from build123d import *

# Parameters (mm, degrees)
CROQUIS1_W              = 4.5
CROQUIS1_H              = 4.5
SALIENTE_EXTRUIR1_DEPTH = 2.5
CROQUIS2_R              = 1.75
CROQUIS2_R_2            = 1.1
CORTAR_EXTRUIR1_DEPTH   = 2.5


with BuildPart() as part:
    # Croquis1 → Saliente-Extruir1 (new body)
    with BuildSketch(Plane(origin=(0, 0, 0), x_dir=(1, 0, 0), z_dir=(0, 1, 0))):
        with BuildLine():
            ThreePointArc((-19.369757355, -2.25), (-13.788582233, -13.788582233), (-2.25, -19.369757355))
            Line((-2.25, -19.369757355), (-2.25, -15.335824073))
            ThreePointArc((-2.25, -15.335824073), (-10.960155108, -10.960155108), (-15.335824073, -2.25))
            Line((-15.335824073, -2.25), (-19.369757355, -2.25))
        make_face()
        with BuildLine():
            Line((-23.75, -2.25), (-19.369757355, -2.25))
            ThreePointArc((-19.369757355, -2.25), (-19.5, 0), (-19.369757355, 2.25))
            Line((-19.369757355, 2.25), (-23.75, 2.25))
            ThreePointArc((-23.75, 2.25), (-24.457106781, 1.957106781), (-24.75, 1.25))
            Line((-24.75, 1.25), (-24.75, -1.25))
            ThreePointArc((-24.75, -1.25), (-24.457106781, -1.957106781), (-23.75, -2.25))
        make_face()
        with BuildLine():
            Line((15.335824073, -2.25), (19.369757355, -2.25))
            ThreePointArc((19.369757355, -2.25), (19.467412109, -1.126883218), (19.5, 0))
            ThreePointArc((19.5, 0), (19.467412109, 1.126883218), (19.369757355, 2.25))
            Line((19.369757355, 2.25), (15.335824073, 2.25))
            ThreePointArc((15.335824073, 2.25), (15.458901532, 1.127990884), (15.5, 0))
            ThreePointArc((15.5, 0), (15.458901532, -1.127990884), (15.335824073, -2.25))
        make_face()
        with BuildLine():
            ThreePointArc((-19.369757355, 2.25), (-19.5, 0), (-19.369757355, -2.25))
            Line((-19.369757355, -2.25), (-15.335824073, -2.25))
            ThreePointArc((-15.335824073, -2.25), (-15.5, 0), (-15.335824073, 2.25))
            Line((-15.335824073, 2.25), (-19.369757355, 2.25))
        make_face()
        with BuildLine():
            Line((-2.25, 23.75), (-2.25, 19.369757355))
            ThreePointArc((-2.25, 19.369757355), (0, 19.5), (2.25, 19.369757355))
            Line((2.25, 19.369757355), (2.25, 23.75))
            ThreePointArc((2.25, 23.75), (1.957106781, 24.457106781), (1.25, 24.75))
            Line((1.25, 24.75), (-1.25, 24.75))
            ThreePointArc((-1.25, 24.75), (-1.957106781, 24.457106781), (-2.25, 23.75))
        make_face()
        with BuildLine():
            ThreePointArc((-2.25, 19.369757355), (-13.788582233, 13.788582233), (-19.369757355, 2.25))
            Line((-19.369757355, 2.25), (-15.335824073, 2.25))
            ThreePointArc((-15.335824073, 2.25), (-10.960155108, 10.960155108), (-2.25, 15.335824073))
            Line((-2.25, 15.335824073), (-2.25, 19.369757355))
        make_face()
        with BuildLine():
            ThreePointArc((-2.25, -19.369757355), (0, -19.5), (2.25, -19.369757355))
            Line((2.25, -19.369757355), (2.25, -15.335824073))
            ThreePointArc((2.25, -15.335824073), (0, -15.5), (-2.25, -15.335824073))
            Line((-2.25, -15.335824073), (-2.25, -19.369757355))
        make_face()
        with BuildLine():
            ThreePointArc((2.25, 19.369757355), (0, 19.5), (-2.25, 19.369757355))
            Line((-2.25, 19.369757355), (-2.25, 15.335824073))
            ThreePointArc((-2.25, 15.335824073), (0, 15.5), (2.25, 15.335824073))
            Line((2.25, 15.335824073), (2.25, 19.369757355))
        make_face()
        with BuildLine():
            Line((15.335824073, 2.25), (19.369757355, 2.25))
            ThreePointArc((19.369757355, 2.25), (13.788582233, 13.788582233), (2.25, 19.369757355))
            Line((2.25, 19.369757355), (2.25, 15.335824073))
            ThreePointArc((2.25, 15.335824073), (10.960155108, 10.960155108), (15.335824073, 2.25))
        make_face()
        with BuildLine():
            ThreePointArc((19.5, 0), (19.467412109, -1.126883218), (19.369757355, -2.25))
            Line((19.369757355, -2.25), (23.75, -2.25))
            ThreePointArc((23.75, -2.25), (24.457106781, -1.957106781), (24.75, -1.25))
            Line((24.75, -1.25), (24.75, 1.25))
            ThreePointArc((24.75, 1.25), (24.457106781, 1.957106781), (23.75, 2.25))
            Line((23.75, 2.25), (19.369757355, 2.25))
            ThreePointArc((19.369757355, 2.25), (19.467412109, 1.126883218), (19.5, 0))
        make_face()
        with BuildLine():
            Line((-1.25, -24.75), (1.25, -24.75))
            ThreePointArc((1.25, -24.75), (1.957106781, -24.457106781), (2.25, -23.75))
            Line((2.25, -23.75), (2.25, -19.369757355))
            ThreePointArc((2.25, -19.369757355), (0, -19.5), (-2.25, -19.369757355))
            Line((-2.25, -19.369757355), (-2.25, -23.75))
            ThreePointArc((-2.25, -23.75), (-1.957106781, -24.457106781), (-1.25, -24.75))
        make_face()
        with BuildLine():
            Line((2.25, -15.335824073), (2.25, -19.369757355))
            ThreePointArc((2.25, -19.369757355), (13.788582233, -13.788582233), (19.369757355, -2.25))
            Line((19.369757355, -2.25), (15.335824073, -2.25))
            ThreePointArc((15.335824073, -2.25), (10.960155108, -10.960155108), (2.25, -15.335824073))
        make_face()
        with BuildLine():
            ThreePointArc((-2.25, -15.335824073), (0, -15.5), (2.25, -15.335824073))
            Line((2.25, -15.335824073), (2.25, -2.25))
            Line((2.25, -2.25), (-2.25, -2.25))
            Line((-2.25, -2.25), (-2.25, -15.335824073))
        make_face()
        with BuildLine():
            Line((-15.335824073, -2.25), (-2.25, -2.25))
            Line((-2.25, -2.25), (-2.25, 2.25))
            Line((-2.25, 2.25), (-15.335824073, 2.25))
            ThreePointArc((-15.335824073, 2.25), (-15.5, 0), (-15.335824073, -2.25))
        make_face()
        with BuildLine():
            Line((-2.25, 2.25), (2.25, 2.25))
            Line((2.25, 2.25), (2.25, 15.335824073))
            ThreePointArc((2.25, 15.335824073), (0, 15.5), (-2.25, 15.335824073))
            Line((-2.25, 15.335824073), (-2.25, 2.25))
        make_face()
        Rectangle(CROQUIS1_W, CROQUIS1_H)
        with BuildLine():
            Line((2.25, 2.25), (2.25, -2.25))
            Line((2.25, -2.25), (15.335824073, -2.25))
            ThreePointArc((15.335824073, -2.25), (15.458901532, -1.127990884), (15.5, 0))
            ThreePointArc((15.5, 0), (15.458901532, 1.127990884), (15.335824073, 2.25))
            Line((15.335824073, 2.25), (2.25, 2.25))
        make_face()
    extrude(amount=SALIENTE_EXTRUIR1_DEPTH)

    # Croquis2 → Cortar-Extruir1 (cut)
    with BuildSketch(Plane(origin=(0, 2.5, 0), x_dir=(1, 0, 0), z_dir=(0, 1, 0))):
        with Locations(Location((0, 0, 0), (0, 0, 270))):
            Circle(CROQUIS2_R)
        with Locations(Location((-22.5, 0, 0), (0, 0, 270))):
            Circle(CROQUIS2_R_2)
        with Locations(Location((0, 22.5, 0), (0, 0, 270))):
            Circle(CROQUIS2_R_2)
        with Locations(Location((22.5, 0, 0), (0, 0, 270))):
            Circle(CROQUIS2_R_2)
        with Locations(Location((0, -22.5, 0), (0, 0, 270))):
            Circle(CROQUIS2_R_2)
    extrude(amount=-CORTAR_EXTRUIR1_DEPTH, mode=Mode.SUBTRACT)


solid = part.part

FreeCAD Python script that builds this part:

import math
import FreeCAD as App
import Part
import Sketcher
Q = App.Units.Quantity

doc = App.newDocument("Part")
body = doc.addObject("PartDesign::Body", "Body")

# Sketch on XZ plane
sketch1 = doc.addObject("Sketcher::SketchObject", "Sketch")
body.addObject(sketch1)
sketch1.AttachmentSupport = (doc.XZ_Plane, [""])
sketch1.MapMode = "FlatFace"
sketch1.addGeometry(Part.ArcOfCircle(Part.Circle(App.Vector(-23.7, -1.2, 0), App.Vector(0, 0, 1), 1), math.radians(-180), math.radians(-90)), False)
sketch1.addGeometry(Part.LineSegment(App.Vector(-24.8, -1.2, 0), App.Vector(-24.8, 1.2, 0)), False)
sketch1.addGeometry(Part.ArcOfCircle(Part.Circle(App.Vector(-23.7, 1.2, 0), App.Vector(0, 0, 1), 1), math.radians(90), math.radians(180)), False)
sketch1.addGeometry(Part.LineSegment(App.Vector(-23.8, 2.2, 0), App.Vector(-19.4, 2.2, 0)), False)
sketch1.addGeometry(Part.ArcOfCircle(Part.Circle(App.Vector(0, 0, 0), App.Vector(0, 0, 1), 19.5), math.radians(97), math.radians(173)), False)
sketch1.addGeometry(Part.LineSegment(App.Vector(-2.2, 19.4, 0), App.Vector(-2.2, 23.8, 0)), False)
sketch1.addGeometry(Part.ArcOfCircle(Part.Circle(App.Vector(-1.2, 23.7, 0), App.Vector(0, 0, 1), 1), math.radians(90), math.radians(180)), False)
sketch1.addGeometry(Part.LineSegment(App.Vector(-1.2, 24.8, 0), App.Vector(1.2, 24.8, 0)), False)
sketch1.addGeometry(Part.ArcOfCircle(Part.Circle(App.Vector(1.2, 23.7, 0), App.Vector(0, 0, 1), 1), math.radians(0), math.radians(90)), False)
sketch1.addGeometry(Part.LineSegment(App.Vector(2.2, 23.8, 0), App.Vector(2.2, 19.4, 0)), False)
sketch1.addGeometry(Part.ArcOfCircle(Part.Circle(App.Vector(0, 0, 0), App.Vector(0, 0, 1), 19.5), math.radians(7), math.radians(83)), False)
sketch1.addGeometry(Part.LineSegment(App.Vector(19.4, 2.2, 0), App.Vector(23.8, 2.2, 0)), False)
sketch1.addGeometry(Part.ArcOfCircle(Part.Circle(App.Vector(23.7, 1.2, 0), App.Vector(0, 0, 1), 1), math.radians(0), math.radians(90)), False)
sketch1.addGeometry(Part.LineSegment(App.Vector(24.8, 1.2, 0), App.Vector(24.8, -1.2, 0)), False)
sketch1.addGeometry(Part.ArcOfCircle(Part.Circle(App.Vector(23.7, -1.2, 0), App.Vector(0, 0, 1), 1), math.radians(-90), math.radians(0)), False)
sketch1.addGeometry(Part.LineSegment(App.Vector(23.8, -2.2, 0), App.Vector(19.4, -2.2, 0)), False)
sketch1.addGeometry(Part.ArcOfCircle(Part.Circle(App.Vector(0, 0, 0), App.Vector(0, 0, 1), 19.5), math.radians(-83), math.radians(-7)), False)
sketch1.addGeometry(Part.LineSegment(App.Vector(2.2, -19.4, 0), App.Vector(2.2, -23.8, 0)), False)
sketch1.addGeometry(Part.ArcOfCircle(Part.Circle(App.Vector(1.2, -23.7, 0), App.Vector(0, 0, 1), 1), math.radians(-90), math.radians(0)), False)
sketch1.addGeometry(Part.LineSegment(App.Vector(1.2, -24.8, 0), App.Vector(-1.2, -24.8, 0)), False)
sketch1.addGeometry(Part.ArcOfCircle(Part.Circle(App.Vector(-1.2, -23.7, 0), App.Vector(0, 0, 1), 1), math.radians(-180), math.radians(-90)), False)
sketch1.addGeometry(Part.LineSegment(App.Vector(-2.2, -23.8, 0), App.Vector(-2.2, -19.4, 0)), False)
sketch1.addGeometry(Part.ArcOfCircle(Part.Circle(App.Vector(0, 0, 0), App.Vector(0, 0, 1), 19.5), math.radians(-173), math.radians(-97)), False)
sketch1.addGeometry(Part.LineSegment(App.Vector(-19.4, -2.2, 0), App.Vector(-23.8, -2.2, 0)), False)
sketch1.addGeometry(Part.LineSegment(App.Vector(-15.3, 2.2, 0), App.Vector(-2.2, 2.2, 0)), False)
sketch1.addGeometry(Part.LineSegment(App.Vector(-2.2, 2.2, 0), App.Vector(-2.2, 15.3, 0)), False)
sketch1.addGeometry(Part.ArcOfCircle(Part.Circle(App.Vector(0, 0, 0), App.Vector(0, 0, 1), 15.5), math.radians(98), math.radians(172)), False)
sketch1.addGeometry(Part.LineSegment(App.Vector(-2.2, -15.3, 0), App.Vector(-2.2, -2.2, 0)), False)
sketch1.addGeometry(Part.LineSegment(App.Vector(-2.2, -2.2, 0), App.Vector(-15.3, -2.2, 0)), False)
sketch1.addGeometry(Part.ArcOfCircle(Part.Circle(App.Vector(0, 0, 0), App.Vector(0, 0, 1), 15.5), math.radians(-172), math.radians(-98)), False)
sketch1.addGeometry(Part.LineSegment(App.Vector(2.2, 15.3, 0), App.Vector(2.2, 2.2, 0)), False)
sketch1.addGeometry(Part.LineSegment(App.Vector(2.2, 2.2, 0), App.Vector(15.3, 2.2, 0)), False)
sketch1.addGeometry(Part.ArcOfCircle(Part.Circle(App.Vector(0, 0, 0), App.Vector(0, 0, 1), 15.5), math.radians(8), math.radians(82)), False)
sketch1.addGeometry(Part.LineSegment(App.Vector(2.2, -2.2, 0), App.Vector(2.2, -15.3, 0)), False)
sketch1.addGeometry(Part.ArcOfCircle(Part.Circle(App.Vector(0, 0, 0), App.Vector(0, 0, 1), 15.5), math.radians(-82), math.radians(-8)), False)
sketch1.addGeometry(Part.LineSegment(App.Vector(15.3, -2.2, 0), App.Vector(2.2, -2.2, 0)), False)
sketch1.addConstraint(Sketcher.Constraint("Tangent", 0, 1, 1, 1))
sketch1.addConstraint(Sketcher.Constraint("Tangent", 1, 2, 2, 2))
sketch1.addConstraint(Sketcher.Constraint("Tangent", 2, 1, 3, 1))
sketch1.addConstraint(Sketcher.Constraint("Coincident", 3, 2, 4, 2))
sketch1.addConstraint(Sketcher.Constraint("Coincident", 4, 1, 5, 1))
sketch1.addConstraint(Sketcher.Constraint("Tangent", 5, 2, 6, 2))
sketch1.addConstraint(Sketcher.Constraint("Tangent", 6, 1, 7, 1))
sketch1.addConstraint(Sketcher.Constraint("Tangent", 7, 2, 8, 2))
sketch1.addConstraint(Sketcher.Constraint("Tangent", 8, 1, 9, 1))
sketch1.addConstraint(Sketcher.Constraint("Coincident", 9, 2, 10, 2))
sketch1.addConstraint(Sketcher.Constraint("Coincident", 10, 1, 11, 1))
sketch1.addConstraint(Sketcher.Constraint("Tangent", 11, 2, 12, 2))
sketch1.addConstraint(Sketcher.Constraint("Tangent", 12, 1, 13, 1))
sketch1.addConstraint(Sketcher.Constraint("Tangent", 13, 2, 14, 2))
sketch1.addConstraint(Sketcher.Constraint("Tangent", 14, 1, 15, 1))
sketch1.addConstraint(Sketcher.Constraint("Coincident", 15, 2, 16, 2))
sketch1.addConstraint(Sketcher.Constraint("Coincident", 16, 1, 17, 1))
sketch1.addConstraint(Sketcher.Constraint("Tangent", 17, 2, 18, 2))
sketch1.addConstraint(Sketcher.Constraint("Tangent", 18, 1, 19, 1))
sketch1.addConstraint(Sketcher.Constraint("Tangent", 19, 2, 20, 2))
sketch1.addConstraint(Sketcher.Constraint("Tangent", 20, 1, 21, 1))
sketch1.addConstraint(Sketcher.Constraint("Coincident", 21, 2, 22, 2))
sketch1.addConstraint(Sketcher.Constraint("Coincident", 22, 1, 23, 1))
sketch1.addConstraint(Sketcher.Constraint("Tangent", 23, 2, 0, 2))
sketch1.addConstraint(Sketcher.Constraint("Coincident", 24, 2, 25, 1))
sketch1.addConstraint(Sketcher.Constraint("Coincident", 25, 2, 26, 1))
sketch1.addConstraint(Sketcher.Constraint("Coincident", 26, 2, 24, 1))
sketch1.addConstraint(Sketcher.Constraint("Coincident", 27, 2, 28, 1))
sketch1.addConstraint(Sketcher.Constraint("Coincident", 28, 2, 29, 1))
sketch1.addConstraint(Sketcher.Constraint("Coincident", 29, 2, 27, 1))
sketch1.addConstraint(Sketcher.Constraint("Coincident", 30, 2, 31, 1))
sketch1.addConstraint(Sketcher.Constraint("Coincident", 31, 2, 32, 1))
sketch1.addConstraint(Sketcher.Constraint("Coincident", 32, 2, 30, 1))
sketch1.addConstraint(Sketcher.Constraint("Coincident", 33, 2, 34, 1))
sketch1.addConstraint(Sketcher.Constraint("Coincident", 34, 2, 35, 1))
sketch1.addConstraint(Sketcher.Constraint("Coincident", 35, 2, 33, 1))
sketch1.addConstraint(Sketcher.Constraint("Vertical", 1))
sketch1.addConstraint(Sketcher.Constraint("Horizontal", 3))
sketch1.addConstraint(Sketcher.Constraint("Vertical", 5))
sketch1.addConstraint(Sketcher.Constraint("Horizontal", 7))
sketch1.addConstraint(Sketcher.Constraint("Vertical", 9))
sketch1.addConstraint(Sketcher.Constraint("Horizontal", 11))
sketch1.addConstraint(Sketcher.Constraint("Vertical", 13))
sketch1.addConstraint(Sketcher.Constraint("Horizontal", 15))
sketch1.addConstraint(Sketcher.Constraint("Vertical", 17))
sketch1.addConstraint(Sketcher.Constraint("Horizontal", 19))
sketch1.addConstraint(Sketcher.Constraint("Vertical", 21))
sketch1.addConstraint(Sketcher.Constraint("Horizontal", 23))
sketch1.addConstraint(Sketcher.Constraint("Horizontal", 24))
sketch1.addConstraint(Sketcher.Constraint("Vertical", 25))
sketch1.addConstraint(Sketcher.Constraint("Vertical", 27))
sketch1.addConstraint(Sketcher.Constraint("Horizontal", 28))
sketch1.addConstraint(Sketcher.Constraint("Vertical", 30))
sketch1.addConstraint(Sketcher.Constraint("Horizontal", 31))
sketch1.addConstraint(Sketcher.Constraint("Vertical", 33))
sketch1.addConstraint(Sketcher.Constraint("Horizontal", 35))
sketch1.addConstraint(Sketcher.Constraint("Coincident", 4, 3, -1, 1))
sketch1.addConstraint(Sketcher.Constraint("Coincident", 10, 3, -1, 1))
sketch1.addConstraint(Sketcher.Constraint("Coincident", 16, 3, -1, 1))
sketch1.addConstraint(Sketcher.Constraint("Coincident", 22, 3, -1, 1))
sketch1.addConstraint(Sketcher.Constraint("Coincident", 26, 3, -1, 1))
sketch1.addConstraint(Sketcher.Constraint("Coincident", 29, 3, -1, 1))
sketch1.addConstraint(Sketcher.Constraint("Coincident", 32, 3, -1, 1))
sketch1.addConstraint(Sketcher.Constraint("Coincident", 34, 3, -1, 1))
sketch1.addConstraint(Sketcher.Constraint("Equal", 0, 2))
sketch1.addConstraint(Sketcher.Constraint("Equal", 2, 6))
sketch1.addConstraint(Sketcher.Constraint("Equal", 6, 8))
sketch1.addConstraint(Sketcher.Constraint("Equal", 4, 10))
sketch1.addConstraint(Sketcher.Constraint("Equal", 8, 12))
sketch1.addConstraint(Sketcher.Constraint("Equal", 12, 14))
sketch1.addConstraint(Sketcher.Constraint("Equal", 10, 16))
sketch1.addConstraint(Sketcher.Constraint("Equal", 14, 18))
sketch1.addConstraint(Sketcher.Constraint("Equal", 18, 20))
sketch1.addConstraint(Sketcher.Constraint("Equal", 16, 22))
sketch1.addConstraint(Sketcher.Constraint("Equal", 26, 29))
sketch1.addConstraint(Sketcher.Constraint("Equal", 29, 32))
sketch1.addConstraint(Sketcher.Constraint("Equal", 32, 34))
sketch1.addConstraint(Sketcher.Constraint("Symmetric", 0, 3, 12, 3, -1, 1))
sketch1.addConstraint(Sketcher.Constraint("Symmetric", 6, 3, 18, 3, -1, 1))
sketch1.addConstraint(Sketcher.Constraint("Symmetric", 27, 2, 30, 2, -1, 1))
sketch1.addConstraint(Sketcher.Constraint("Symmetric", 24, 2, 35, 2, -1, 1))
sketch1.addConstraint(Sketcher.Constraint("Symmetric", 24, 2, 30, 2, -2))
sketch1.addConstraint(Sketcher.Constraint("Horizontal", 2, 3, 12, 3))
sketch1.addConstraint(Sketcher.Constraint("Horizontal", 0, 3, 14, 3))
sketch1.addConstraint(Sketcher.Constraint("Horizontal", 4, 1, 9, 2))
sketch1.addConstraint(Sketcher.Constraint("Horizontal", 16, 1, 21, 2))
sketch1.addConstraint(Sketcher.Constraint("Horizontal", 11, 2, 24, 2))
sketch1.addConstraint(Sketcher.Constraint("Vertical", 21, 2, 24, 2))
sketch1.addConstraint(Sketcher.Constraint("Equal", 19, 1))
sketch1.addConstraint(Sketcher.Constraint("Equal", 23, 5))
sketch1.addConstraint(Sketcher.Constraint("Radius", 0, Q("1 mm")))
sketch1.addConstraint(Sketcher.Constraint("Radius", 4, Q("19.5 mm")))
sketch1.addConstraint(Sketcher.Constraint("Radius", 26, Q("15.5 mm")))
sketch1.addConstraint(Sketcher.Constraint("DistanceX", 7, 1, 7, 2, Q("2.5 mm")))
sketch1.addConstraint(Sketcher.Constraint("DistanceY", 0, 3, 6, 3, Q("25 mm")))
pad1 = doc.addObject("PartDesign::Pad", "Pad")
body.addObject(pad1)
pad1.Profile = sketch1
pad1.Length = 2.5
pad1.Reversed = True

# Sketch on XZ plane
sketch2 = doc.addObject("Sketcher::SketchObject", "Sketch001")
body.addObject(sketch2)
sketch2.AttachmentSupport = (doc.XZ_Plane, [""])
sketch2.MapMode = "FlatFace"
sketch2.AttachmentOffset = App.Placement(App.Vector(0, 0, -2.5), App.Rotation())
sketch2.addGeometry(Part.Circle(App.Vector(0, 0, 0), App.Vector(0, 0, 1), 1.8), False)
sketch2.addGeometry(Part.Circle(App.Vector(-22.5, 0, 0), App.Vector(0, 0, 1), 1.1), False)
sketch2.addGeometry(Part.Circle(App.Vector(0, -22.5, 0), App.Vector(0, 0, 1), 1.1), False)
sketch2.addGeometry(Part.Circle(App.Vector(22.5, 0, 0), App.Vector(0, 0, 1), 1.1), False)
sketch2.addGeometry(Part.Circle(App.Vector(0, 22.5, 0), App.Vector(0, 0, 1), 1.1), False)
sketch2.addConstraint(Sketcher.Constraint("Coincident", 0, 3, -1, 1))
sketch2.addConstraint(Sketcher.Constraint("Equal", 1, 2))
sketch2.addConstraint(Sketcher.Constraint("Equal", 2, 3))
sketch2.addConstraint(Sketcher.Constraint("Equal", 3, 4))
sketch2.addConstraint(Sketcher.Constraint("Symmetric", 1, 3, 3, 3, -1, 1))
sketch2.addConstraint(Sketcher.Constraint("Symmetric", 2, 3, 4, 3, -1, 1))
sketch2.addConstraint(Sketcher.Constraint("PointOnObject", 1, 3, -1))
sketch2.addConstraint(Sketcher.Constraint("PointOnObject", 2, 3, -2))
sketch2.addConstraint(Sketcher.Constraint("Diameter", 0, Q("3.5 mm")))
sketch2.addConstraint(Sketcher.Constraint("Diameter", 1, Q("2.2 mm")))
sketch2.addConstraint(Sketcher.Constraint("DistanceX", 1, 3, 3, 3, Q("45 mm")))
sketch2.addConstraint(Sketcher.Constraint("DistanceY", 2, 3, 4, 3, Q("45 mm")))
pocket1 = doc.addObject("PartDesign::Pocket", "Pocket")
body.addObject(pocket1)
pocket1.Profile = sketch2
pocket1.Length = 2.5
pocket1.Reversed = True

doc.recompute()
